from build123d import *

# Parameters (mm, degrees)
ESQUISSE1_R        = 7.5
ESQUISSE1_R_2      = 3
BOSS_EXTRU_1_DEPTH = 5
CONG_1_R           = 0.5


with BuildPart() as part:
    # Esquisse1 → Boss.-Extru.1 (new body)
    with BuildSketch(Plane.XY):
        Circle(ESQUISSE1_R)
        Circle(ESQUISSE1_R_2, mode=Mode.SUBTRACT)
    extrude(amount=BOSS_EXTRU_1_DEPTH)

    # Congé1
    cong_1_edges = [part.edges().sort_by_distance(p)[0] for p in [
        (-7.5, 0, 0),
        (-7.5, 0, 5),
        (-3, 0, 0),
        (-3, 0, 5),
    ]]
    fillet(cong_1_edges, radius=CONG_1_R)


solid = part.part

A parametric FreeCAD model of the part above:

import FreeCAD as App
import Part
import Sketcher
from FreeCAD import Vector


def edges_at(feature, points):
    """Names of the edges that pass closest to the given points."""
    edges = feature.Shape.Edges
    near = lambda p: min(range(len(edges)), key=lambda i: edges[i].distToShape(Part.Vertex(*p))[0])
    return sorted({f"Edge{near(p) + 1}" for p in points})

doc = App.newDocument("Part")
body = doc.addObject("PartDesign::Body", "Body")

sketch1 = doc.addObject("Sketcher::SketchObject", "Sketch")
body.addObject(sketch1)
sketch1.AttachmentSupport = (doc.XY_Plane, [""])
sketch1.MapMode = "FlatFace"
sketch1.addGeometry([
    Part.Circle(Vector(0, 0, 0), Vector(0, 0, 1), 7.5),
    Part.Circle(Vector(0, 0, 0), Vector(0, 0, 1), 3),
], False)
sketch1.addConstraint([
    Sketcher.Constraint("Coincident", 0, 3, -1, 1),
    Sketcher.Constraint("Coincident", 1, 3, -1, 1),
    Sketcher.Constraint("Diameter", 0, 15.0),
    Sketcher.Constraint("Diameter", 1, 6.0),
])
pad1 = doc.addObject("PartDesign::Pad", "Pad")
body.addObject(pad1)
pad1.Profile = sketch1
pad1.Length = 5
doc.recompute()

fillet = doc.addObject("PartDesign::Fillet", "Fillet")
body.addObject(fillet)
fillet.Base = (pad1, edges_at(pad1, [
    (-7.5, 0, 0),
    (-7.5, 0, 5),
    (-3, 0, 0),
    (-3, 0, 5),
]))
fillet.Radius = 0.5

doc.recompute()
